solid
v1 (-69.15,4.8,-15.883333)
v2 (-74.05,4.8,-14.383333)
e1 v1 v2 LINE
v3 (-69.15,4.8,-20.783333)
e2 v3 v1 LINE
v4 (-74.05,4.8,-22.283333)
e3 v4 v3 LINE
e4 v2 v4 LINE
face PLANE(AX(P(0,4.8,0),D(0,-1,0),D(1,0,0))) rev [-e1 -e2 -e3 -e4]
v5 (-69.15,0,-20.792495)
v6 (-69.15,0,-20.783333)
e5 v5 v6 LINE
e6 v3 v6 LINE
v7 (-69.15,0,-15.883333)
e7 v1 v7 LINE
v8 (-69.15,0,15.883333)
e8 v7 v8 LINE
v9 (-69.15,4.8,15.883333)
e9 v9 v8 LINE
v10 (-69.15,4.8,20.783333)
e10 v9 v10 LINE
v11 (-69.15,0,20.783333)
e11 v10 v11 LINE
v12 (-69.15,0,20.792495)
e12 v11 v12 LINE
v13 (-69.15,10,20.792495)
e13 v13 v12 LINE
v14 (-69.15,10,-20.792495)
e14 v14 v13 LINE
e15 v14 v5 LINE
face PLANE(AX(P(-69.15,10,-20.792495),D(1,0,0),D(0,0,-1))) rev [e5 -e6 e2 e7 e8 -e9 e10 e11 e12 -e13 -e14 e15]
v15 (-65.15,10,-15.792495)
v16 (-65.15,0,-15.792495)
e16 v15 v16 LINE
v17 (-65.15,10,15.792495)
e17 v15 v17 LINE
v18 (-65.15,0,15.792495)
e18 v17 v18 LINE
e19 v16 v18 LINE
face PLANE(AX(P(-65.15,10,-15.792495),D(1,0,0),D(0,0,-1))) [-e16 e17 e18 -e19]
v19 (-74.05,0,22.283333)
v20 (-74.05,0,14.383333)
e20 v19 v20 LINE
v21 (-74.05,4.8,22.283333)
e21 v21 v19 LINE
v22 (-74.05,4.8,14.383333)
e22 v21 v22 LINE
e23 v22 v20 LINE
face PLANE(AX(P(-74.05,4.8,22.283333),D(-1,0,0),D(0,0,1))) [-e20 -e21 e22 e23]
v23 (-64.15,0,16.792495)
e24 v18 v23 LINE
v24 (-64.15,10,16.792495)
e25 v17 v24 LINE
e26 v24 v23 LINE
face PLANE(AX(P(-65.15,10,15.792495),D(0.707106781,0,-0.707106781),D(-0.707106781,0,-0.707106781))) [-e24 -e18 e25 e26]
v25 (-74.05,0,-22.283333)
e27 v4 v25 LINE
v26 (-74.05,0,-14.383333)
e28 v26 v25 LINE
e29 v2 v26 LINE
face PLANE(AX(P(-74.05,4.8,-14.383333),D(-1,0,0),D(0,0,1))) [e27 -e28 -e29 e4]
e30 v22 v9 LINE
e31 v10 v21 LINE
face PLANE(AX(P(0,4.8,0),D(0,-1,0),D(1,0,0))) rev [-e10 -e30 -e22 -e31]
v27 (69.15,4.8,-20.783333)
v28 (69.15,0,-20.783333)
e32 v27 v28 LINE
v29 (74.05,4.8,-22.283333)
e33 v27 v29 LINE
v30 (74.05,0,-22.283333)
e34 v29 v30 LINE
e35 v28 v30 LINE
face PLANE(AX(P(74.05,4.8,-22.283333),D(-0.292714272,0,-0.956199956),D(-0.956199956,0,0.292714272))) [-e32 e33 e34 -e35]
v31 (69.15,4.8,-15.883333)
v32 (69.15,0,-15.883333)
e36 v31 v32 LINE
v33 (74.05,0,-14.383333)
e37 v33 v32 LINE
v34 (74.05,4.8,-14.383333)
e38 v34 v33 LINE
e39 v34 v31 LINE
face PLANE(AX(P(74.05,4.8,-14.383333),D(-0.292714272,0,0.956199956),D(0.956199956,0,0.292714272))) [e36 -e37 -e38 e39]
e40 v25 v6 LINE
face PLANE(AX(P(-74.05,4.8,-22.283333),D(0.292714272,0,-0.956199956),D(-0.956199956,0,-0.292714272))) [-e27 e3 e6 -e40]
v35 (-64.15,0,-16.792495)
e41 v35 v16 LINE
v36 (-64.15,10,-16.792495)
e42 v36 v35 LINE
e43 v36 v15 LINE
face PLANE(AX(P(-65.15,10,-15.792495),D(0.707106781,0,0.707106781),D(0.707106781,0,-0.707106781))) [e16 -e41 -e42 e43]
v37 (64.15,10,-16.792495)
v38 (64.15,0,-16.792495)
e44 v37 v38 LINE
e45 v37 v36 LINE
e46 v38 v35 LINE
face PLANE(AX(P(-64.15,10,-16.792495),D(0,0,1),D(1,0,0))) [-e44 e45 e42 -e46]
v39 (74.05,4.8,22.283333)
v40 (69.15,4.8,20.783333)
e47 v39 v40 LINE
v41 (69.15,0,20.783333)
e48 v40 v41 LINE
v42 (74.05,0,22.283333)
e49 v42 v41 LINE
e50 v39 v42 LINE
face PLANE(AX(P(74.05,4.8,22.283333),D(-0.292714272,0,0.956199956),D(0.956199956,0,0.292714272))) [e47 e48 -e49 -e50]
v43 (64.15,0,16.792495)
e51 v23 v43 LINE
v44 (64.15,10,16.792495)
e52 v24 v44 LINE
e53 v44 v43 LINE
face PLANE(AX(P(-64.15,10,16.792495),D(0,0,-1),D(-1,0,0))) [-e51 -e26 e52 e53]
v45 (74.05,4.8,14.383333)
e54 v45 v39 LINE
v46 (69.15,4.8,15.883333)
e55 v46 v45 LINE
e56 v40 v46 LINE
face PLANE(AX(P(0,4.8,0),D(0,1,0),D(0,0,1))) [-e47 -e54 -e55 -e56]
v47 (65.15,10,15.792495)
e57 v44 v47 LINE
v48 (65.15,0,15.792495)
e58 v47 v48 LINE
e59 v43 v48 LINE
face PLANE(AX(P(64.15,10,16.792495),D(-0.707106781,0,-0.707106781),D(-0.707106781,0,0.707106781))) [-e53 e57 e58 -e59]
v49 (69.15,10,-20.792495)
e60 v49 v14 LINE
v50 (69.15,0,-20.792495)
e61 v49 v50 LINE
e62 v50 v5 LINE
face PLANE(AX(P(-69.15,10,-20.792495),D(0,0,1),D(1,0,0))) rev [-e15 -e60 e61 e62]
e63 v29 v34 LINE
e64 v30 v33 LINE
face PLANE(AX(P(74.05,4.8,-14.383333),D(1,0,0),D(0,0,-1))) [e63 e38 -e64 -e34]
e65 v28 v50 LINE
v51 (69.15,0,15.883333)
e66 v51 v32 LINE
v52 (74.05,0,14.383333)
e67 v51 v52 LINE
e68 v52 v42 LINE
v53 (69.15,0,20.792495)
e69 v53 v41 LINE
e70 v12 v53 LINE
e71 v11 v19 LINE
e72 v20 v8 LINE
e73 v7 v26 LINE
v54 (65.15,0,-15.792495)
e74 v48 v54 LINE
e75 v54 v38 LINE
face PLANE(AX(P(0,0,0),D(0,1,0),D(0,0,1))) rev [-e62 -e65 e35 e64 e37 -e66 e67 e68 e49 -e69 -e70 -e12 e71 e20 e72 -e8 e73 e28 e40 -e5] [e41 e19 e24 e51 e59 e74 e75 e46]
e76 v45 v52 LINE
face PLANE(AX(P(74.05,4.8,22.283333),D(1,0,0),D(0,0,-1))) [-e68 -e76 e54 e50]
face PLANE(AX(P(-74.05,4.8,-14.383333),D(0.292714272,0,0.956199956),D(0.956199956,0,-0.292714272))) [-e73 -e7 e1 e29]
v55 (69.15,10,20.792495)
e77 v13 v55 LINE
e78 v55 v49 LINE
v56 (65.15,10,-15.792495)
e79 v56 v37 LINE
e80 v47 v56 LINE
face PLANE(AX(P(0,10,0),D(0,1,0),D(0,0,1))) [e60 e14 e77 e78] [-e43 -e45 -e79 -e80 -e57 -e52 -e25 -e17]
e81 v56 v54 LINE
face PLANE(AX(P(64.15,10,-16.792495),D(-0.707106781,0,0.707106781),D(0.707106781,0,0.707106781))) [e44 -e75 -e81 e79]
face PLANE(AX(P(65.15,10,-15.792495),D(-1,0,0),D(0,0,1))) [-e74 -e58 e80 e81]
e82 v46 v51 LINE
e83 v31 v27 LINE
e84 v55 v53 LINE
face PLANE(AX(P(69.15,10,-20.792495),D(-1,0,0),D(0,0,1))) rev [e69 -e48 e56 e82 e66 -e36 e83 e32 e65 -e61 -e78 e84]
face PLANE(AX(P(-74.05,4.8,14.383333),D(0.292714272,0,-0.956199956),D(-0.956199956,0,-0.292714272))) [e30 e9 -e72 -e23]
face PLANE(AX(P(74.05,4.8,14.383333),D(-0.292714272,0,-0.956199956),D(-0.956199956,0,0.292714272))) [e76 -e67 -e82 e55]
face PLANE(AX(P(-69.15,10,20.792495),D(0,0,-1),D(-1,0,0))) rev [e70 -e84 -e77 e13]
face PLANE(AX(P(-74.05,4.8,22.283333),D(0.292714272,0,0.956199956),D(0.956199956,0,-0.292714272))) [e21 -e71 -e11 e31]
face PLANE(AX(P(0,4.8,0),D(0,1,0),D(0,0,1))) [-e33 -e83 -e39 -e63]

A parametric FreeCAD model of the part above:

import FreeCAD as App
import Part
import Sketcher
from FreeCAD import Vector
Q = App.Units.Quantity


def add_polygon(sketch, points):
    """Adds a closed chain of lines whose ends are joined by coincident constraints."""
    first, n = sketch.GeometryCount, len(points)
    for a, b in zip(points, points[1:] + points[:1]):
        sketch.addGeometry(Part.LineSegment(App.Vector(*a, 0), App.Vector(*b, 0)), False)
    for i in range(n):
        sketch.addConstraint(Sketcher.Constraint("Coincident", first + i, 2, first + (i + 1) % n, 1))

doc = App.newDocument("Part")
body = doc.addObject("PartDesign::Body", "Body")

# Sketch on XZ plane
sketch1 = doc.addObject("Sketcher::SketchObject", "Sketch")
body.addObject(sketch1)
sketch1.AttachmentSupport = (doc.XZ_Plane, [""])
sketch1.MapMode = "FlatFace"
add_polygon(sketch1, [(-69.15, -20.792495), (-69.15, 20.792495), (69.15, 20.792495), (69.15, -20.792495)])  # lines 0-3
add_polygon(sketch1, [(-65.15, -15.792495), (-64.15, -16.792495), (64.15, -16.792495), (65.15, -15.792495), (65.15, 15.792495), (64.15, 16.792495), (-64.15, 16.792495), (-65.15, 15.792495)])  # lines 4-11
sketch1.addConstraint([
    Sketcher.Constraint("Vertical", 0),
    Sketcher.Constraint("Horizontal", 1),
    Sketcher.Constraint("Vertical", 2),
    Sketcher.Constraint("Horizontal", 3),
    Sketcher.Constraint("Horizontal", 5),
    Sketcher.Constraint("Vertical", 7),
    Sketcher.Constraint("Horizontal", 9),
    Sketcher.Constraint("Vertical", 11),
    Sketcher.Constraint("Symmetric", 0, 2, 2, 2, -1, 1),
    Sketcher.Constraint("Symmetric", 4, 2, 8, 2, -1, 1),
    Sketcher.Constraint("Symmetric", 6, 2, 10, 2, -1, 1),
    Sketcher.Constraint("Perpendicular", 4, 6),
    Sketcher.Constraint("Perpendicular", 6, 8),
    Sketcher.Constraint("Perpendicular", 8, 10),
    Sketcher.Constraint("Horizontal", 7, 2, 10, 2),
    Sketcher.Constraint("Vertical", 5, 2, 8, 2),
    Sketcher.Constraint("DistanceX", 1, 1, 1, 2, Q("138.3 mm")),
    Sketcher.Constraint("DistanceX", 5, 1, 5, 2, Q("128.3 mm")),
    Sketcher.Constraint("DistanceY", 3, 2, 4, 2, Q("4 mm")),
    Sketcher.Constraint("DistanceX", 5, 2, 6, 2, Q("1 mm")),
    Sketcher.Constraint("DistanceY", 0, 1, 0, 2, Q("41.584989 mm")),
])
pad1 = doc.addObject("PartDesign::Pad", "Pad")
body.addObject(pad1)
pad1.Profile = sketch1
pad1.Length = 10
pad1.Reversed = True

# Sketch on XZ plane
sketch2 = doc.addObject("Sketcher::SketchObject", "Sketch001")
body.addObject(sketch2)
sketch2.AttachmentSupport = (doc.XZ_Plane, [""])
sketch2.MapMode = "FlatFace"
add_polygon(sketch2, [(74.05, 22.283333), (69.15, 20.783333), (69.15, 15.883333), (74.05, 14.383333)])  # lines 0-3
add_polygon(sketch2, [(74.05, -14.383333), (69.15, -15.883333), (69.15, -20.783333), (74.05, -22.283333)])  # lines 4-7
add_polygon(sketch2, [(-69.15, 20.783333), (-74.05, 22.283333), (-74.05, 14.383333), (-69.15, 15.883333)])  # lines 8-11
add_polygon(sketch2, [(-69.15, -15.883333), (-74.05, -14.383333), (-74.05, -22.283333), (-69.15, -20.783333)])  # lines 12-15
sketch2.addConstraint([
    Sketcher.Constraint("Vertical", 1),
    Sketcher.Constraint("Vertical", 3),
    Sketcher.Constraint("Vertical", 5),
    Sketcher.Constraint("Vertical", 7),
    Sketcher.Constraint("Vertical", 9),
    Sketcher.Constraint("Vertical", 11),
    Sketcher.Constraint("Vertical", 13),
    Sketcher.Constraint("Vertical", 15),
    Sketcher.Constraint("Symmetric", 6, 2, 8, 2, -1, 1),
    Sketcher.Constraint("Symmetric", 4, 2, 10, 2, -1, 1),
    Sketcher.Constraint("Symmetric", 2, 2, 12, 2, -1, 1),
    Sketcher.Constraint("Symmetric", 0, 2, 14, 2, -1, 1),
    Sketcher.Constraint("Symmetric", 3, 2, 8, 2, -2),
    Sketcher.Constraint("Symmetric", 1, 2, 10, 2, -2),
    Sketcher.Constraint("Parallel", 0, 4),
    Sketcher.Constraint("Parallel", 2, 6),
    Sketcher.Constraint("Parallel", 6, 8),
    Sketcher.Constraint("Parallel", 4, 10),
    Sketcher.Constraint("Parallel", 8, 12),
    Sketcher.Constraint("Parallel", 10, 14),
    Sketcher.Constraint("Horizontal", 2, 2, 9, 2),
    Sketcher.Constraint("DistanceY", 1, 2, 1, 1, Q("4.9 mm")),
    Sketcher.Constraint("DistanceY", 3, 1, 3, 2, Q("7.9 mm")),
    Sketcher.Constraint("DistanceX", 1, 2, 2, 2, Q("4.9 mm")),
    Sketcher.Constraint("DistanceX", 8, 2, 0, 2, Q("143.2 mm")),
    Sketcher.Constraint("DistanceY", -1, 1, 0, 2, Q("20.783333 mm")),
])
pad2 = doc.addObject("PartDesign::Pad", "Pad001")
body.addObject(pad2)
pad2.Profile = sketch2
pad2.Length = 4.8
pad2.Reversed = True

doc.recompute()
